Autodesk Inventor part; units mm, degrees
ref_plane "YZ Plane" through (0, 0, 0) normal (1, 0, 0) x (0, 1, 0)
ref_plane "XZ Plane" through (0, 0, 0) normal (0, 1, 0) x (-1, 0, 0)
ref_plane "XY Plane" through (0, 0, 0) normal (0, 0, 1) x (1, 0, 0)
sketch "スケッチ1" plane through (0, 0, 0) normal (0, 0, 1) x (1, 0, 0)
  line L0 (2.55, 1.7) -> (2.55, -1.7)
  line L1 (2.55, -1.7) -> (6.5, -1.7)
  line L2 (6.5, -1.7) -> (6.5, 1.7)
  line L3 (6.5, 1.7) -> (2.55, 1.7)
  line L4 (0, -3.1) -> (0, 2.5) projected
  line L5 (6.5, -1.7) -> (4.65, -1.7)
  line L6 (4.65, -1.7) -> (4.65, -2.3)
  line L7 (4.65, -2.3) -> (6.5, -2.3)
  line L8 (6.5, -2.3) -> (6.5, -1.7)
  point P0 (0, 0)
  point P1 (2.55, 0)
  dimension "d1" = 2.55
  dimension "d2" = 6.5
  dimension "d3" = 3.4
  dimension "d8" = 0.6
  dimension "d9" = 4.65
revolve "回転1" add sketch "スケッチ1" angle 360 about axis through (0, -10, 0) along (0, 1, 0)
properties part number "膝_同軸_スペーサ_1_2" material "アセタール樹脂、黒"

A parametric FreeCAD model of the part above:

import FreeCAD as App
import Part
import Sketcher


def add_polygon(sketch, points):
    """Adds a closed chain of lines whose ends are joined by coincident constraints."""
    first, n = sketch.GeometryCount, len(points)
    for a, b in zip(points, points[1:] + points[:1]):
        sketch.addGeometry(Part.LineSegment(App.Vector(*a, 0), App.Vector(*b, 0)), False)
    for i in range(n):
        sketch.addConstraint(Sketcher.Constraint("Coincident", first + i, 2, first + (i + 1) % n, 1))

doc = App.newDocument("Part")
body = doc.addObject("PartDesign::Body", "Body")

sketch1 = body.newObject("Sketcher::SketchObject", "Sketch")
sketch1.AttachmentSupport = (doc.getObject("XY_Plane"), [""])
sketch1.MapMode = "FlatFace"
add_polygon(sketch1, [(6.5, 1.7), (2.55, 1.7), (2.55, -1.7), (4.65, -1.7), (4.65, -2.3), (6.5, -2.3)])
sketch1.addConstraint([
    Sketcher.Constraint("Horizontal", 0),
    Sketcher.Constraint("Vertical", 1),
    Sketcher.Constraint("Horizontal", 2),
    Sketcher.Constraint("Vertical", 3),
    Sketcher.Constraint("Horizontal", 4),
    Sketcher.Constraint("Vertical", 5),
    Sketcher.Constraint("DistanceY", 1, 2, 1, 1, 3.4),
    Sketcher.Constraint("DistanceY", 3, 2, 3, 1, 0.6),
    Sketcher.Constraint("DistanceX", -1, 1, 4, 2, 6.5),
    Sketcher.Constraint("DistanceX", -1, 1, 0, 2, 2.55),
    Sketcher.Constraint("DistanceX", -1, 1, 2, 2, 4.65),
    Sketcher.Constraint("DistanceY", -1, 1, 0, 2, 1.7),
])
revolution = body.newObject("PartDesign::Revolution", "Revolution")
revolution.Profile = sketch1
revolution.ReferenceAxis = (sketch1, ["V_Axis"])
revolution.Angle = 360

doc.recompute()
